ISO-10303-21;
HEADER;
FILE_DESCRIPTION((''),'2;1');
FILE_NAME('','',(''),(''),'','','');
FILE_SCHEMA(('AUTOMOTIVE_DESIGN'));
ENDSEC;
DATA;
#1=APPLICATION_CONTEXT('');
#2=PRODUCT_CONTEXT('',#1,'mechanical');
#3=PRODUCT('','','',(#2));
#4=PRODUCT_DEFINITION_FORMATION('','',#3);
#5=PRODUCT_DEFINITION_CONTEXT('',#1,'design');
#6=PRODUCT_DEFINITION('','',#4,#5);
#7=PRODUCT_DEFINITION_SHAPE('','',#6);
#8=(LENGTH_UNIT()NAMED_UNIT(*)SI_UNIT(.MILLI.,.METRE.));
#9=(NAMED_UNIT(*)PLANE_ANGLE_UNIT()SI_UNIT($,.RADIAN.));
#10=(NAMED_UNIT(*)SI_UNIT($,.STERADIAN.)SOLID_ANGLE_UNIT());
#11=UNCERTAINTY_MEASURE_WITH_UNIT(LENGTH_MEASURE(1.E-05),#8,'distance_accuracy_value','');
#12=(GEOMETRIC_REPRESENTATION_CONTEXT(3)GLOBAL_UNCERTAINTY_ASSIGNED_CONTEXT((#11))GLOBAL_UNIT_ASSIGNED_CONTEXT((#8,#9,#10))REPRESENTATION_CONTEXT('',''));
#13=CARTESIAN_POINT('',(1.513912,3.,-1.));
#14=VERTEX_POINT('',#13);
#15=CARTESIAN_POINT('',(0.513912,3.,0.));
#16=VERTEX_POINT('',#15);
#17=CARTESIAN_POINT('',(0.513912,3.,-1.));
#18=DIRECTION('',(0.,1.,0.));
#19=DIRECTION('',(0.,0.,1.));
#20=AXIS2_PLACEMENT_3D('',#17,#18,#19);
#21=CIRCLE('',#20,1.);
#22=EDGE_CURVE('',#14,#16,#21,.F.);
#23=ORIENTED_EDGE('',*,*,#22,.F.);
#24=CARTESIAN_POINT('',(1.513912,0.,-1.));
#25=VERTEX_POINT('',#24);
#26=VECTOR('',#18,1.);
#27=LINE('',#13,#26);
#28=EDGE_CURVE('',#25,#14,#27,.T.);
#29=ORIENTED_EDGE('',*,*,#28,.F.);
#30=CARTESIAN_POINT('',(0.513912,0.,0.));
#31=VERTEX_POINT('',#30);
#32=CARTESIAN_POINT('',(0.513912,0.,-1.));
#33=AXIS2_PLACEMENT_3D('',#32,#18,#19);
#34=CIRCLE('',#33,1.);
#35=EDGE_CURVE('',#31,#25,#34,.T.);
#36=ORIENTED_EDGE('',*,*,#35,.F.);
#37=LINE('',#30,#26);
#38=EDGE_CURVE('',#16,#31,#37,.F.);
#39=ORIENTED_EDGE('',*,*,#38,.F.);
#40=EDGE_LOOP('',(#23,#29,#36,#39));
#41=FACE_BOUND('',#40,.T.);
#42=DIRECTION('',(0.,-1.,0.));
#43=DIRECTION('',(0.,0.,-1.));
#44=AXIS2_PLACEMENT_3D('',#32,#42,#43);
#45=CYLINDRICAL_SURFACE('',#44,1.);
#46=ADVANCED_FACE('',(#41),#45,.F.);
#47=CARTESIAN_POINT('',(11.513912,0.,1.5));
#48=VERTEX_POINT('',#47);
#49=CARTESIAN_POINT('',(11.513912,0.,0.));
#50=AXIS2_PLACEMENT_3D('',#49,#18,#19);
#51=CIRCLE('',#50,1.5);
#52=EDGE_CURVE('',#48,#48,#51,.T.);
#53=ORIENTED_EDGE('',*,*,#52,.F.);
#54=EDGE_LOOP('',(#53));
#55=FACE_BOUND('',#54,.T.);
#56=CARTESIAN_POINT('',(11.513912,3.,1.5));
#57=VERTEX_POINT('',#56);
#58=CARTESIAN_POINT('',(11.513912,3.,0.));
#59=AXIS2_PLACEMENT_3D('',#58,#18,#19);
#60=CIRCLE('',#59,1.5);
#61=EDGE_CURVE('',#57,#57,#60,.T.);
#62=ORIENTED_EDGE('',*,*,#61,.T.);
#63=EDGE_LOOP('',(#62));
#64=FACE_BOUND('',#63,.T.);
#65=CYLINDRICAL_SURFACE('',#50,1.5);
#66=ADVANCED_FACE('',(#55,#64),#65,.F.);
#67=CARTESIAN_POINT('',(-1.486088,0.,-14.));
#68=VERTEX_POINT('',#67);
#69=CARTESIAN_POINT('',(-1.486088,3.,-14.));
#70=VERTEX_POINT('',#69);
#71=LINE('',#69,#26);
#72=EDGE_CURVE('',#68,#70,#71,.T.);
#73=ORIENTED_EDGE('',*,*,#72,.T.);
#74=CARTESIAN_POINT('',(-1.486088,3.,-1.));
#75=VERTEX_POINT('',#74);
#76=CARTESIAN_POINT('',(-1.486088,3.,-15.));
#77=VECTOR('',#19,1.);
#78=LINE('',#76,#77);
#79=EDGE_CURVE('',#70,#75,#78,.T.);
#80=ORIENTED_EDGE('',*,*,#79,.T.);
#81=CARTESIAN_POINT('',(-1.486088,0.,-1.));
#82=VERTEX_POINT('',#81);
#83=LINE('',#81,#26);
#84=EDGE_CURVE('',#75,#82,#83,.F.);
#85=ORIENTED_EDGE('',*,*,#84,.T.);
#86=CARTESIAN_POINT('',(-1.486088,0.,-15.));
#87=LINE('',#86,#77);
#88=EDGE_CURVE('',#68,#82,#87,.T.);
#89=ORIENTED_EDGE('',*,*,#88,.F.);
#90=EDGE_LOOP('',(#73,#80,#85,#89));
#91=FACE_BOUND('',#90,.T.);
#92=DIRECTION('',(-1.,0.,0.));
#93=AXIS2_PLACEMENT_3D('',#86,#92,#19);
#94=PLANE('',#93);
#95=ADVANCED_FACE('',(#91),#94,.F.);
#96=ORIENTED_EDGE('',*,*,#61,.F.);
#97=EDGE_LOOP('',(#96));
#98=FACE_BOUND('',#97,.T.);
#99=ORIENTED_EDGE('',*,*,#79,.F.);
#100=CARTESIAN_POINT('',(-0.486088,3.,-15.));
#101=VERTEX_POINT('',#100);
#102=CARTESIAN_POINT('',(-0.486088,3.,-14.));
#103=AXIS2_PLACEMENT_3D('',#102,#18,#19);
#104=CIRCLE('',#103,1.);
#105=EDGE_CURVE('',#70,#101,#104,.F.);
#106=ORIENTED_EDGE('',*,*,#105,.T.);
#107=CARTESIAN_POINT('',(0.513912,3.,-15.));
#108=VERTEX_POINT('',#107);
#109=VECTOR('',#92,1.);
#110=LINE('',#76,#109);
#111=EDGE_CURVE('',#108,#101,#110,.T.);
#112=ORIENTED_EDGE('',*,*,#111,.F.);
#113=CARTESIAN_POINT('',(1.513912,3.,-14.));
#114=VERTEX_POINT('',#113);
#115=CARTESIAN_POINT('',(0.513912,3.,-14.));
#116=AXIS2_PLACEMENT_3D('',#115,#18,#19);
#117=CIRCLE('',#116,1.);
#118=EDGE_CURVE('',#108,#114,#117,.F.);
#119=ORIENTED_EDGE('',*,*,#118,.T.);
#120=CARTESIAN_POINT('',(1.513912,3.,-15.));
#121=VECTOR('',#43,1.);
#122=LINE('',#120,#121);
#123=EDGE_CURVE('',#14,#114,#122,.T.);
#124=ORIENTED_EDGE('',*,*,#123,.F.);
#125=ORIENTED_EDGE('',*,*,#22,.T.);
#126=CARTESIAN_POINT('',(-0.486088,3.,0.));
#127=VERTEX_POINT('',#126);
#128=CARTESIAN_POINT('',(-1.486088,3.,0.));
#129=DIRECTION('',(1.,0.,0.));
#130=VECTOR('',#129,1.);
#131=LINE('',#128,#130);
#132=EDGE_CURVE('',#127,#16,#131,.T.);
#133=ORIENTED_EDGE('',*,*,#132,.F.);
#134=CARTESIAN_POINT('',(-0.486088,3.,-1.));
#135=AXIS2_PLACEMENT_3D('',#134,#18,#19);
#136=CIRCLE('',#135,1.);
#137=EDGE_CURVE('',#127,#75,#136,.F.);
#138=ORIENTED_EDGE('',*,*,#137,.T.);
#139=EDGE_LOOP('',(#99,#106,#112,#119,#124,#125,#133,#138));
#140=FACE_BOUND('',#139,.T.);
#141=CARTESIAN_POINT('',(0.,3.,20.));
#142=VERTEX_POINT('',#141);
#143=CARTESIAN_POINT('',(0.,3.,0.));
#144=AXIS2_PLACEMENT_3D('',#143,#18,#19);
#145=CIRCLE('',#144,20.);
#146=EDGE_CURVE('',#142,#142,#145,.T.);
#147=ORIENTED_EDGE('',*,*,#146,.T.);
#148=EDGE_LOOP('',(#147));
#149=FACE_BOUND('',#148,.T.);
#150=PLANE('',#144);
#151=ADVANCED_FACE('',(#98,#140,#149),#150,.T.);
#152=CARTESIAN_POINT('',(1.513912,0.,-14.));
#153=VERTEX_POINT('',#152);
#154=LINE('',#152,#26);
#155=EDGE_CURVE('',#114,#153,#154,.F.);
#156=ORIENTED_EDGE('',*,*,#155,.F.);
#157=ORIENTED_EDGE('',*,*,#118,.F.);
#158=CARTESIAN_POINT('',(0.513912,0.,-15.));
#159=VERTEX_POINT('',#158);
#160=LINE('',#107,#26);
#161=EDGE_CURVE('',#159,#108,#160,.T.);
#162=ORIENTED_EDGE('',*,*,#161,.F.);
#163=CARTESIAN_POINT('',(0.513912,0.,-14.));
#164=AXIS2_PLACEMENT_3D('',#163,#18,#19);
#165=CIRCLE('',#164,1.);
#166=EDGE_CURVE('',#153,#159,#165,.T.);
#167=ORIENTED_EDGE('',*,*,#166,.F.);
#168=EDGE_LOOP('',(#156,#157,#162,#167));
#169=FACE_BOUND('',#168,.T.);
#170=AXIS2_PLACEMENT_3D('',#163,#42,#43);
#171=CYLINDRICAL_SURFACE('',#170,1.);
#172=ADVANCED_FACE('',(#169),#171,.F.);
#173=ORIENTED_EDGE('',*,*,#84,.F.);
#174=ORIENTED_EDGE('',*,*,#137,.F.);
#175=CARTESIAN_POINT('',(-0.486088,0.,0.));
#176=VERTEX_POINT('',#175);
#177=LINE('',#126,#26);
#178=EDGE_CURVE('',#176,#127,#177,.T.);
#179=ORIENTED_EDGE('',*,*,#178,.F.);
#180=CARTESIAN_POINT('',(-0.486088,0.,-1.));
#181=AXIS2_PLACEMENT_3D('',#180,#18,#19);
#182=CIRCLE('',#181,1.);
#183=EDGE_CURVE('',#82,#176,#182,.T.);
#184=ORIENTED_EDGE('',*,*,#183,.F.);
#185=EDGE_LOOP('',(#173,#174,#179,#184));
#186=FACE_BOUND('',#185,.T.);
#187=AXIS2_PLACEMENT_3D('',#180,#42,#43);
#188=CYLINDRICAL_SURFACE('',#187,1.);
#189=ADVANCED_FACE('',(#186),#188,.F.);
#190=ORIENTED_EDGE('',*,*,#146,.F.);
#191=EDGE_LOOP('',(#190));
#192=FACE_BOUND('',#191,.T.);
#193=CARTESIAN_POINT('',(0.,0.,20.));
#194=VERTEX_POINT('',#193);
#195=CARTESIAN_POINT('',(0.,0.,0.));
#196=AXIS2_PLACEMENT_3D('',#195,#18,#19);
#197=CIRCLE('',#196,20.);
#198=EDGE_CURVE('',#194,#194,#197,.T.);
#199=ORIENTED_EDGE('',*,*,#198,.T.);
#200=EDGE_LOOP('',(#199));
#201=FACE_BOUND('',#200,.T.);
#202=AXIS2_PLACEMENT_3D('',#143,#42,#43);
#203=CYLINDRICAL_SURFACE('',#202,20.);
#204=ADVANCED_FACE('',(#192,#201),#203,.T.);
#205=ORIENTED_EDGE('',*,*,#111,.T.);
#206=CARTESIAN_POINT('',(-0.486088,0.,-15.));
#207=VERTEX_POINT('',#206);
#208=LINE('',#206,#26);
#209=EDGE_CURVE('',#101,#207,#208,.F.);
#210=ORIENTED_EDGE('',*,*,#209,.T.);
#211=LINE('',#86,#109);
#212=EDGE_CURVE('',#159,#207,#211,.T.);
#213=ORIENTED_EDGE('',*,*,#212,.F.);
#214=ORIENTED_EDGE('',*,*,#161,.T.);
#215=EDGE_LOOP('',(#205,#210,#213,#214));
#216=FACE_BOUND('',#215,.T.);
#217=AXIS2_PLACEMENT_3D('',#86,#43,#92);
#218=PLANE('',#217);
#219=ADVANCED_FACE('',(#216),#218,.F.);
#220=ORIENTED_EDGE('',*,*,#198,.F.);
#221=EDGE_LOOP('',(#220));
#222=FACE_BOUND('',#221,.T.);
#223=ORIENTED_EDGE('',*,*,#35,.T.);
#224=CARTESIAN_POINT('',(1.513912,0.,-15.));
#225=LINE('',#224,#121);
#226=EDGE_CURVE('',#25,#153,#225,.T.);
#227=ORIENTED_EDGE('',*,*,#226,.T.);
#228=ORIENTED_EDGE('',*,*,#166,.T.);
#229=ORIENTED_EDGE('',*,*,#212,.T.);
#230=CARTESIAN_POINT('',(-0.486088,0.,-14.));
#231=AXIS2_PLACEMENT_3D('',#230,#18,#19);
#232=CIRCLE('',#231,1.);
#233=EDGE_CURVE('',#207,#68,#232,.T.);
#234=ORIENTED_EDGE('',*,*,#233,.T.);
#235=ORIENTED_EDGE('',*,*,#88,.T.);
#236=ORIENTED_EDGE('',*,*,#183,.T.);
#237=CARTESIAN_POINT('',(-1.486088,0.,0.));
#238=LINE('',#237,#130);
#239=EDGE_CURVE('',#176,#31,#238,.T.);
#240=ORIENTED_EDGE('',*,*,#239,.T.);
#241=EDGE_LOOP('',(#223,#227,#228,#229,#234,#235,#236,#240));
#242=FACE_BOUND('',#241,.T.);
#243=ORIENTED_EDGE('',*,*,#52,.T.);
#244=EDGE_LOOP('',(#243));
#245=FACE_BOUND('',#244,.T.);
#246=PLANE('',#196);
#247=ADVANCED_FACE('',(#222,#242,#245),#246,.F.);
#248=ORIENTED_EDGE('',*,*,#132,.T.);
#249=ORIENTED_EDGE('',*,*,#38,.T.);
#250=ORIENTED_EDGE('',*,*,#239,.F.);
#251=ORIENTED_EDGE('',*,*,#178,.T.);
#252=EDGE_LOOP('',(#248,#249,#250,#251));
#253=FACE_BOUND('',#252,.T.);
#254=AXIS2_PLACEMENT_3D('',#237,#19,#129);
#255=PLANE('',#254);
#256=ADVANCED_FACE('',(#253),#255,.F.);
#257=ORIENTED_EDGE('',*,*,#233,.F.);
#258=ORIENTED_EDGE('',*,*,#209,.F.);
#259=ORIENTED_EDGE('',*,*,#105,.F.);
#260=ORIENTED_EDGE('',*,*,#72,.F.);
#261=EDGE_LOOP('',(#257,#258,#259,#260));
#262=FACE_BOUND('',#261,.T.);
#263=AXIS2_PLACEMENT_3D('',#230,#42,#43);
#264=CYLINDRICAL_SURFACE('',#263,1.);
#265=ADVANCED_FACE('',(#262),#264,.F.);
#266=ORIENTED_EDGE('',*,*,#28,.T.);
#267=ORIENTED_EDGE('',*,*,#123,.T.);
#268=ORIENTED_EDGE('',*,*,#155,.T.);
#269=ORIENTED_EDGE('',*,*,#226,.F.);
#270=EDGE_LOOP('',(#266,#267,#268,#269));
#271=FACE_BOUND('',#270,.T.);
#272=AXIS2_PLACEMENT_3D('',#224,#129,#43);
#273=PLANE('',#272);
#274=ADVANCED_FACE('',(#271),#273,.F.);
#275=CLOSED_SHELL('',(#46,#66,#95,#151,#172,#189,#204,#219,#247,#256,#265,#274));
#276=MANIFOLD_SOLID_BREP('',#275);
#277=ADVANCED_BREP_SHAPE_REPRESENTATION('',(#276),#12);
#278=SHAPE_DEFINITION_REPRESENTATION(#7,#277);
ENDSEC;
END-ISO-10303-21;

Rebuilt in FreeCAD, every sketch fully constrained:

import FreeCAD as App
import Part
import Sketcher
from FreeCAD import Vector


def edges_at(feature, points):
    """Names of the edges that pass closest to the given points."""
    edges = feature.Shape.Edges
    near = lambda p: min(range(len(edges)), key=lambda i: edges[i].distToShape(Part.Vertex(*p))[0])
    return sorted({f"Edge{near(p) + 1}" for p in points})


def add_polygon(sketch, points):
    """Adds a closed chain of lines whose ends are joined by coincident constraints."""
    first, n = sketch.GeometryCount, len(points)
    for a, b in zip(points, points[1:] + points[:1]):
        sketch.addGeometry(Part.LineSegment(App.Vector(*a, 0), App.Vector(*b, 0)), False)
    for i in range(n):
        sketch.addConstraint(Sketcher.Constraint("Coincident", first + i, 2, first + (i + 1) % n, 1))

doc = App.newDocument("Part")
params = doc.addObject("Spreadsheet::Sheet", "Params")
for row, (alias, value) in enumerate([
    ("sketch1_diameter", "40 mm"),
    ("pad1_length", "3 mm"),
    ("sketch2_width", "3 mm"),
    ("sketch2_height", "15 mm"),
    ("pocket1_length", "3 mm"),
    ("sketch3_diameter", "3 mm"),
    ("pocket2_length", "3 mm"),
    ("fillet_radius", "1 mm"),
    ("fillet2_radius", "1 mm"),
    ("fillet3_radius", "1 mm"),
    ("fillet4_radius", "1 mm"),
], start=1):
    params.set(f"A{row}", alias)
    params.set(f"B{row}", "=" + value)
    params.setAlias(f"B{row}", alias)

body = doc.addObject("PartDesign::Body", "Body")

sketch1 = body.newObject("Sketcher::SketchObject", "Sketch")
sketch1.AttachmentSupport = (doc.getObject("XZ_Plane"), [""])
sketch1.MapMode = "FlatFace"
sketch1.addGeometry(Part.Circle(Vector(0, 0, 0), Vector(0, 0, 1), 20), False)
sketch1.addConstraint([
    Sketcher.Constraint("Coincident", 0, 3, -1, 1),
    Sketcher.Constraint("Diameter", 0, 40.0),
])
sketch1.setExpression("Constraints[1]", "Params.sketch1_diameter")
pad1 = body.newObject("PartDesign::Pad", "Pad")
pad1.Profile = sketch1
pad1.setExpression("Length", "Params.pad1_length")
pad1.Reversed = True

sketch2 = body.newObject("Sketcher::SketchObject", "Sketch001")
sketch2.AttachmentSupport = (doc.getObject("XZ_Plane"), [""])
sketch2.MapMode = "FlatFace"
sketch2.AttachmentOffset = App.Placement(Vector(0, 0, -3), App.Rotation())
add_polygon(sketch2, [(-1.5, -15), (-1.5, 0), (1.5, 0), (1.5, -15)])
sketch2.addConstraint([
    Sketcher.Constraint("Vertical", 0),
    Sketcher.Constraint("Horizontal", 1),
    Sketcher.Constraint("Vertical", 2),
    Sketcher.Constraint("Horizontal", 3),
    Sketcher.Constraint("PointOnObject", 0, 2, -1),
    Sketcher.Constraint("DistanceX", 1, 1, 1, 2, 3.0),
    Sketcher.Constraint("DistanceY", 0, 1, 0, 2, 15.0),
    Sketcher.Constraint("DistanceX", 0, 2, -1, 1, 1.486088),
])
sketch2.setExpression("Constraints[9]", "Params.sketch2_width")
sketch2.setExpression("Constraints[10]", "Params.sketch2_height")
pocket1 = body.newObject("PartDesign::Pocket", "Pocket")
pocket1.Profile = sketch2
pocket1.setExpression("Length", "Params.pocket1_length")
pocket1.Reversed = True

sketch3 = body.newObject("Sketcher::SketchObject", "Sketch002")
sketch3.AttachmentSupport = (doc.getObject("XZ_Plane"), [""])
sketch3.MapMode = "FlatFace"
sketch3.AttachmentOffset = App.Placement(Vector(0, 0, -3), App.Rotation())
sketch3.addGeometry(Part.Circle(Vector(11.5, 0, 0), Vector(0, 0, 1), 1.5), False)
sketch3.addConstraint([
    Sketcher.Constraint("PointOnObject", 0, 3, -1),
    Sketcher.Constraint("Diameter", 0, 3.0),
    Sketcher.Constraint("DistanceX", -1, 1, 0, 3, 11.513912),
])
sketch3.setExpression("Constraints[1]", "Params.sketch3_diameter")
pocket2 = body.newObject("PartDesign::Pocket", "Pocket001")
pocket2.Profile = sketch3
pocket2.setExpression("Length", "Params.pocket2_length")
pocket2.Reversed = True
doc.recompute()

fillet = body.newObject("PartDesign::Fillet", "Fillet")
fillet.Base = (pocket2, edges_at(pocket2, [(-1.486, 1.5, -15)]))
fillet.setExpression("Radius", "Params.fillet_radius")
doc.recompute()

fillet2 = body.newObject("PartDesign::Fillet", "Fillet001")
fillet2.Base = (fillet, edges_at(fillet, [(1.514, 1.5, -15)]))
fillet2.setExpression("Radius", "Params.fillet2_radius")
doc.recompute()

fillet3 = body.newObject("PartDesign::Fillet", "Fillet002")
fillet3.Base = (fillet2, edges_at(fillet2, [(-1.486, 1.5, 0)]))
fillet3.setExpression("Radius", "Params.fillet3_radius")
doc.recompute()

fillet4 = body.newObject("PartDesign::Fillet", "Fillet003")
fillet4.Base = (fillet3, edges_at(fillet3, [(1.514, 1.5, 0)]))
fillet4.setExpression("Radius", "Params.fillet4_radius")

doc.recompute()
